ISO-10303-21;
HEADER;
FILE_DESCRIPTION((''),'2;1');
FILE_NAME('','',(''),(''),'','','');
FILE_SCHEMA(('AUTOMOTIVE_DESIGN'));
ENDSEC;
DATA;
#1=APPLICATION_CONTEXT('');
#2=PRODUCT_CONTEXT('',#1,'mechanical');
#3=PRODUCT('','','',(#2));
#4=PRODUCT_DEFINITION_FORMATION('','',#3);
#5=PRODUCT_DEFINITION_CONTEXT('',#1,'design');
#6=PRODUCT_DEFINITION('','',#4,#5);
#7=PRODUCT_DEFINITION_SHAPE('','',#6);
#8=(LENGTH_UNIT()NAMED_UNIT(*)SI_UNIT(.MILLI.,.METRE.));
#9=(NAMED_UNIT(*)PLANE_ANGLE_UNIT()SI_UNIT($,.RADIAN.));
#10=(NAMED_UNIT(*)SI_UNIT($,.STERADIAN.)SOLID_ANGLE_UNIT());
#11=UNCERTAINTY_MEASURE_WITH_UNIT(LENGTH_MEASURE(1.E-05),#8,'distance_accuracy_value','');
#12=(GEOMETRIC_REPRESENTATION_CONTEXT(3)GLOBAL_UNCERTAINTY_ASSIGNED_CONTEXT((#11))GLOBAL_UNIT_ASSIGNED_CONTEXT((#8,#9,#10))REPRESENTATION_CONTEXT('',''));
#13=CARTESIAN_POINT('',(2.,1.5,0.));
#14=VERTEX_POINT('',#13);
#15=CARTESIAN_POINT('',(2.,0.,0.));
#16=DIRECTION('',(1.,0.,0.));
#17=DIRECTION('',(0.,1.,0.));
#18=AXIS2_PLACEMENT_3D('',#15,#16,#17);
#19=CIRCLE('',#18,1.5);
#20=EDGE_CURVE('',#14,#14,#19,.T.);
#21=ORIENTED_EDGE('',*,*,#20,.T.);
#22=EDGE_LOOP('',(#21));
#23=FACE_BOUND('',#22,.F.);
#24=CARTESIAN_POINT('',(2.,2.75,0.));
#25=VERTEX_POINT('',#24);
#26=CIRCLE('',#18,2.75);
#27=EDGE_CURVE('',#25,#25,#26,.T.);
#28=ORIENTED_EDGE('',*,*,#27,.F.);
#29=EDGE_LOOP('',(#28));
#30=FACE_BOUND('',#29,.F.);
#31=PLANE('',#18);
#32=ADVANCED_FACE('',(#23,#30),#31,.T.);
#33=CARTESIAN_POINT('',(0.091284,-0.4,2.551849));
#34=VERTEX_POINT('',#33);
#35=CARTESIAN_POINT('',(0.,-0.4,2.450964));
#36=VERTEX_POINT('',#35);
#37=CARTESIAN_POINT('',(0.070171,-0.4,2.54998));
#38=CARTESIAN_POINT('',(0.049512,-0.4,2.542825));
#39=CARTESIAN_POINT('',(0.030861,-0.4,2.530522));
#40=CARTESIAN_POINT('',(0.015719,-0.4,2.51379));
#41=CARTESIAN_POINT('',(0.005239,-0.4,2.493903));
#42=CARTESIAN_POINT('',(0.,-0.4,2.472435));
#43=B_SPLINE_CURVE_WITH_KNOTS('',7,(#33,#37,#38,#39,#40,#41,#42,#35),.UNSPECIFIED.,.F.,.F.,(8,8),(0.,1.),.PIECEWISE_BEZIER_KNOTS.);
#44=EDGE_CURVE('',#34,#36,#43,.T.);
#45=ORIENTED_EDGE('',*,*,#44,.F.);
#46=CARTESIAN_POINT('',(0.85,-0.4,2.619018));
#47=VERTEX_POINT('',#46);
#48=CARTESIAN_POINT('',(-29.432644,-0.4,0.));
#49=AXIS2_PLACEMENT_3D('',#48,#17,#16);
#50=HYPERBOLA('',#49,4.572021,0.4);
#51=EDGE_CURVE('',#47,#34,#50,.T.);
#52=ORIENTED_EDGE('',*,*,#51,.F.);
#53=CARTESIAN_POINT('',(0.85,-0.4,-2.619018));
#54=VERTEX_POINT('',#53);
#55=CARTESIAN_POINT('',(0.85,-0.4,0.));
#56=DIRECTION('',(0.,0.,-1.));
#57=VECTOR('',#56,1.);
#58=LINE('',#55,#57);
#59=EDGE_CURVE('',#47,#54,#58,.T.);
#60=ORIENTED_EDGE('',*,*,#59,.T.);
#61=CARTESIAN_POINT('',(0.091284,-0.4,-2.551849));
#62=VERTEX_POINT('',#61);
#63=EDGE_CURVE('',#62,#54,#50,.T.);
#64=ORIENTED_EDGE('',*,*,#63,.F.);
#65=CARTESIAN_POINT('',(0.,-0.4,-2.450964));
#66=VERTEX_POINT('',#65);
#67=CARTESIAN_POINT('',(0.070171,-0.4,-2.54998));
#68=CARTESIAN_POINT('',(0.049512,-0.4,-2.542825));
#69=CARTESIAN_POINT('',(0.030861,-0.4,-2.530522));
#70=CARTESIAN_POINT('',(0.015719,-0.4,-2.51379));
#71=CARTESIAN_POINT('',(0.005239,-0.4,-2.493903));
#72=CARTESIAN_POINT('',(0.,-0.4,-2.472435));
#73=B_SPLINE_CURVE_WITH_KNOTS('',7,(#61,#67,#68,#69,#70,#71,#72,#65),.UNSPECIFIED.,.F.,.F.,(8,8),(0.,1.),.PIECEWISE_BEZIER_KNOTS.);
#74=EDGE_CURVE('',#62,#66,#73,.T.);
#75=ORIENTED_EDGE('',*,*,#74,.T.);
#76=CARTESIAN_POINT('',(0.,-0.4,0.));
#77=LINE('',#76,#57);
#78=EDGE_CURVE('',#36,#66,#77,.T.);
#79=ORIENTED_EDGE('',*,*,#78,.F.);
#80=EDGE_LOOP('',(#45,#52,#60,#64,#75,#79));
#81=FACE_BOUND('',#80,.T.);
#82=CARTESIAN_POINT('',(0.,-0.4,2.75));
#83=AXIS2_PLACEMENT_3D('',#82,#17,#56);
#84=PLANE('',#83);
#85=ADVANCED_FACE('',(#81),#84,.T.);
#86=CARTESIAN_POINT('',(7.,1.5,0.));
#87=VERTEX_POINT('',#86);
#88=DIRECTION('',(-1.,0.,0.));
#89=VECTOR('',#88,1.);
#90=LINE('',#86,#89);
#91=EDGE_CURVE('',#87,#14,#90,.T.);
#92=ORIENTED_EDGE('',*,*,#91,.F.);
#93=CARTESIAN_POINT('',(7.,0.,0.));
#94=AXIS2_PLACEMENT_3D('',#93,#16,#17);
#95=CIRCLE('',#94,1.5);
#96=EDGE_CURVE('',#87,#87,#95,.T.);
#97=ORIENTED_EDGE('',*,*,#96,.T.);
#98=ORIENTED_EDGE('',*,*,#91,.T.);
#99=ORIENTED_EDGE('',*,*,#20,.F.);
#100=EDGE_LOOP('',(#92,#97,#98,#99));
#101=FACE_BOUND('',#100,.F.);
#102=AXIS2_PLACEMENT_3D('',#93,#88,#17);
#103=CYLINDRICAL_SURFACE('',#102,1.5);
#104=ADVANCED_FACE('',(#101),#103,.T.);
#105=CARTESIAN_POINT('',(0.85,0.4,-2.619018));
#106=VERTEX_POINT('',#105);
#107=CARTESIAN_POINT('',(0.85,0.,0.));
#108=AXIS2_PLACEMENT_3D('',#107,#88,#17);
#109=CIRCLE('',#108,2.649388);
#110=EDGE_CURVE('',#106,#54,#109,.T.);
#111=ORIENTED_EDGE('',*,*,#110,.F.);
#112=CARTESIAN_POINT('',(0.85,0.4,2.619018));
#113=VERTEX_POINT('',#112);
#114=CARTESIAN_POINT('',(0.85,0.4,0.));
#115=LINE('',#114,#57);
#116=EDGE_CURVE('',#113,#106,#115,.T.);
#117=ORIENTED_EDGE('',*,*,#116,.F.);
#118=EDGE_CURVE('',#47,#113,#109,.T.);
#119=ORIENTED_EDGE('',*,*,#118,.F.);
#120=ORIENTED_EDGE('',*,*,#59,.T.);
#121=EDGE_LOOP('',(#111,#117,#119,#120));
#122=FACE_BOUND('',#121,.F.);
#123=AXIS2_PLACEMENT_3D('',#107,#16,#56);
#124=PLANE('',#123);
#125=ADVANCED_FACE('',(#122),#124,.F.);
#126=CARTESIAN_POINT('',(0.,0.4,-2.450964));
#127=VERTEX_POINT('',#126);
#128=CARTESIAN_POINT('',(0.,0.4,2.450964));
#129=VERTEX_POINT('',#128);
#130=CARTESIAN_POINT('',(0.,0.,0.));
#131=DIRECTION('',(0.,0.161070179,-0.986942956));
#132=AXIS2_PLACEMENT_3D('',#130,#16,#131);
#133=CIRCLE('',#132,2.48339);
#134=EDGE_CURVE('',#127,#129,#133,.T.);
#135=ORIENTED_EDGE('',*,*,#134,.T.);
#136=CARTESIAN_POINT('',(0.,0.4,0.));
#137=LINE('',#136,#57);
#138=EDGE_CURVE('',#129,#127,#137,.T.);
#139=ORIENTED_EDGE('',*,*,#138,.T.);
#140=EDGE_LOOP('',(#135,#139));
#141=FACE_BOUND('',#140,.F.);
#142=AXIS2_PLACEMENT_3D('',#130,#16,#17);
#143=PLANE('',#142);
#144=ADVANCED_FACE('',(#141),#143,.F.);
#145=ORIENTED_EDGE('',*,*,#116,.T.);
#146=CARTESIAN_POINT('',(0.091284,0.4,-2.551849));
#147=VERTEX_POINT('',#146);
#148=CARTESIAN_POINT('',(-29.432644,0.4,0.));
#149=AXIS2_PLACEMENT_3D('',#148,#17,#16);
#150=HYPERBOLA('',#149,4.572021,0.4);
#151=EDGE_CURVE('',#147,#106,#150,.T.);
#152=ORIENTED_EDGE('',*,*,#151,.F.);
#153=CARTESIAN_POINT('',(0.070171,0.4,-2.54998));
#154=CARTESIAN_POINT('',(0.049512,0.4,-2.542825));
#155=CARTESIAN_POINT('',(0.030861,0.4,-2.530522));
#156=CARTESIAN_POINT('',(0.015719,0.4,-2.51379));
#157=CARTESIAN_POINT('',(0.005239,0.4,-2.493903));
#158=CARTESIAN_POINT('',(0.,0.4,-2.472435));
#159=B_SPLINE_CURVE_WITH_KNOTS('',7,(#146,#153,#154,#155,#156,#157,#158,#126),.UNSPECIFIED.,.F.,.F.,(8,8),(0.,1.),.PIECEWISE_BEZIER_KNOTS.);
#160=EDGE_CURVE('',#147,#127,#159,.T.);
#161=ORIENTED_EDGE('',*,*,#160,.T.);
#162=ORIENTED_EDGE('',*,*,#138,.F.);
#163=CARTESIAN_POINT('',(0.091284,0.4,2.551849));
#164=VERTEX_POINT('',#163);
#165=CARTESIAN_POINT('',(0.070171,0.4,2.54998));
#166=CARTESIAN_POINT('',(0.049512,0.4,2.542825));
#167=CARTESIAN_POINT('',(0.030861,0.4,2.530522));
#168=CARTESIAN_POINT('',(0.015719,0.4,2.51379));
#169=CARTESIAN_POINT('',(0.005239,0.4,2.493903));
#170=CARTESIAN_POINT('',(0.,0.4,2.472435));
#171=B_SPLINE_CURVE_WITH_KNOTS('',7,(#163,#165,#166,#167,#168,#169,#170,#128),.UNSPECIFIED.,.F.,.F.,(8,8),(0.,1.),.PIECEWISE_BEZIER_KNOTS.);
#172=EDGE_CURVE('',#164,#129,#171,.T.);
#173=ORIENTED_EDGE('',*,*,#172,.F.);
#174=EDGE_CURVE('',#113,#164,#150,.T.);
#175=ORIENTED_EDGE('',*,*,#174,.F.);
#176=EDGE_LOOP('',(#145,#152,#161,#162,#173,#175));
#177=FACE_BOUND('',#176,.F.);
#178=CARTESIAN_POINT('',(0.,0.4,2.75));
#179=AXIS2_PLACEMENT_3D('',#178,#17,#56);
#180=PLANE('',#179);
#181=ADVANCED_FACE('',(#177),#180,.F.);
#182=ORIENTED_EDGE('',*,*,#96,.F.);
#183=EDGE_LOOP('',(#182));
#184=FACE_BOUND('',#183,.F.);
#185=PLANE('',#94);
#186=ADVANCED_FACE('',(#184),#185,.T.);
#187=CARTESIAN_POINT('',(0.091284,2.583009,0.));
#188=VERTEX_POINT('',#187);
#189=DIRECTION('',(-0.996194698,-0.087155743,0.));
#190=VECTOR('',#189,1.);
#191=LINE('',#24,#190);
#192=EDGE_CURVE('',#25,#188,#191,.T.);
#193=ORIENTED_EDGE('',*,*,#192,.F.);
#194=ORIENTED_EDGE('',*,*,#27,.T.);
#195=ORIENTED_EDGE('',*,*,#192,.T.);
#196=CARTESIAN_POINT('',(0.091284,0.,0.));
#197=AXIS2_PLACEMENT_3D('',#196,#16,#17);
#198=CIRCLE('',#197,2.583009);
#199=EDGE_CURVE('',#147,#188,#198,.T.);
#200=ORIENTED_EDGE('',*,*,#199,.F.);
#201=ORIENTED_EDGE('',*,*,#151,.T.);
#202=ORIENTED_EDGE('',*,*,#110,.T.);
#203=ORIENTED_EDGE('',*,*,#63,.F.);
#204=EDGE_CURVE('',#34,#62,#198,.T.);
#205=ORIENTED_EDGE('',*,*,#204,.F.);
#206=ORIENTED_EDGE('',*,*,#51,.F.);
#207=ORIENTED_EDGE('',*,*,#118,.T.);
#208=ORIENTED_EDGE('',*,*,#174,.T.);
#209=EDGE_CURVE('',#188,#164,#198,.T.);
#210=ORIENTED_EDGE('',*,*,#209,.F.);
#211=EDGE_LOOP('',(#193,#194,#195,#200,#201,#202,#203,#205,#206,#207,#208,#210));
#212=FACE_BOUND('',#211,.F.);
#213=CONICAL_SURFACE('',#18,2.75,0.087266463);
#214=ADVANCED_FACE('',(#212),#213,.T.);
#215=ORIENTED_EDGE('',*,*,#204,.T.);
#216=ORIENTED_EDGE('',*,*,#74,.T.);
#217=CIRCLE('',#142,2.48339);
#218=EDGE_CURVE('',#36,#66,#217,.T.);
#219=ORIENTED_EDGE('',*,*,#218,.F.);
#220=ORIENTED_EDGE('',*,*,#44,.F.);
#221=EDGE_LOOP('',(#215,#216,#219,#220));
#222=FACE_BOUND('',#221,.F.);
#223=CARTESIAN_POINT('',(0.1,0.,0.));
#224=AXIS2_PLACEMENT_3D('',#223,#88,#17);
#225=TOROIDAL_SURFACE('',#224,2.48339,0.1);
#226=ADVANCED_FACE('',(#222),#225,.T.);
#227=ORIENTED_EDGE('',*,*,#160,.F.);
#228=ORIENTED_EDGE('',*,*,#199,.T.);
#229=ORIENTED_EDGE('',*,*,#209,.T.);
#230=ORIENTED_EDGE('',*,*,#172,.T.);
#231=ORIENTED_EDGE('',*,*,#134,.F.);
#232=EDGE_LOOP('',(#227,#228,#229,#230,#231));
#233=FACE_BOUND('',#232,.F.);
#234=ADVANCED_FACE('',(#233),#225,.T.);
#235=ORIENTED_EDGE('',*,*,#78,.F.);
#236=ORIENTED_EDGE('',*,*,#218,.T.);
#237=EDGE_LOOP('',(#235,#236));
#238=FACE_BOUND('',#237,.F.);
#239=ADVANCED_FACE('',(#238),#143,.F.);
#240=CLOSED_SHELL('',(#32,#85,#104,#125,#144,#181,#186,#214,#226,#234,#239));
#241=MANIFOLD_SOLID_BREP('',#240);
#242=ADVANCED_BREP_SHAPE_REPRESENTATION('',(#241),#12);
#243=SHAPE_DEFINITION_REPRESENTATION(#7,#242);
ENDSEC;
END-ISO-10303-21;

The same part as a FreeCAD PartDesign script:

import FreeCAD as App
import Part
import Sketcher

V = App.Vector
Q = App.Units.Quantity


def edges_at(feature, points):
    """Names of the edges that pass closest to the given points."""
    edges = feature.Shape.Edges
    near = lambda p: min(range(len(edges)), key=lambda i: edges[i].distToShape(Part.Vertex(*p))[0])
    return sorted({f"Edge{near(p) + 1}" for p in points})


def add_polygon(sketch, points):
    """Adds a closed chain of lines whose ends are joined by coincident constraints."""
    first, n = sketch.GeometryCount, len(points)
    for a, b in zip(points, points[1:] + points[:1]):
        sketch.addGeometry(Part.LineSegment(App.Vector(*a, 0), App.Vector(*b, 0)), False)
    for i in range(n):
        sketch.addConstraint(Sketcher.Constraint("Coincident", first + i, 2, first + (i + 1) % n, 1))

doc = App.newDocument("Part")
body = doc.addObject("PartDesign::Body", "Body")

sketch1 = body.newObject("Sketcher::SketchObject", "Sketch")
sketch1.AttachmentSupport = (doc.getObject("XY_Plane"), [""])
sketch1.MapMode = "FlatFace"
add_polygon(sketch1, [(2, 1.5), (2, 2.75), (0, 2.575023), (0, 0), (7, 0), (7, 1.5)])
sketch1.addConstraint([
    Sketcher.Constraint("Vertical", 0),
    Sketcher.Constraint("Vertical", 2),
    Sketcher.Constraint("Horizontal", 3),
    Sketcher.Constraint("Vertical", 4),
    Sketcher.Constraint("Horizontal", 5),
    Sketcher.Constraint("Coincident", 2, 2, -1, 1),
    Sketcher.Constraint("DistanceX", 3, 1, 3, 2, 7.0),
    Sketcher.Constraint("DistanceX", 5, 2, 5, 1, 5.0),
    Sketcher.Constraint("Angle", 1, Q("-175 deg")),
    Sketcher.Constraint("DistanceY", 4, 1, 4, 2, 1.5),
    Sketcher.Constraint("DistanceY", 0, 1, 0, 2, 1.25),
])
revolution = body.newObject("PartDesign::Revolution", "Revolution")
revolution.Profile = sketch1
revolution.ReferenceAxis = (sketch1, ["H_Axis"])
revolution.Angle = 360
doc.recompute()

fillet = body.newObject("PartDesign::Fillet", "Fillet")
fillet.Base = (revolution, edges_at(revolution, [(0, -2.575, 0)]))
fillet.Radius = 0.1

sketch2 = body.newObject("Sketcher::SketchObject", "Sketch001")
sketch2.AttachmentSupport = (doc.getObject("YZ_Plane"), [""])
sketch2.MapMode = "FlatFace"
add_polygon(sketch2, [(0.4, 2.75), (-0.4, 2.75), (-0.4, -2.75), (0.4, -2.75)])
sketch2.addConstraint([
    Sketcher.Constraint("Horizontal", 0),
    Sketcher.Constraint("Vertical", 1),
    Sketcher.Constraint("Horizontal", 2),
    Sketcher.Constraint("Vertical", 3),
    Sketcher.Constraint("Symmetric", 0, 2, 2, 2, -1, 1),
    Sketcher.Constraint("DistanceX", 0, 2, 0, 1, 0.8),
    Sketcher.Constraint("DistanceY", 1, 2, 1, 1, 5.5),
])
pocket1 = body.newObject("PartDesign::Pocket", "Pocket")
pocket1.Profile = sketch2
pocket1.Length = 0.85
pocket1.Reversed = True

doc.recompute()
